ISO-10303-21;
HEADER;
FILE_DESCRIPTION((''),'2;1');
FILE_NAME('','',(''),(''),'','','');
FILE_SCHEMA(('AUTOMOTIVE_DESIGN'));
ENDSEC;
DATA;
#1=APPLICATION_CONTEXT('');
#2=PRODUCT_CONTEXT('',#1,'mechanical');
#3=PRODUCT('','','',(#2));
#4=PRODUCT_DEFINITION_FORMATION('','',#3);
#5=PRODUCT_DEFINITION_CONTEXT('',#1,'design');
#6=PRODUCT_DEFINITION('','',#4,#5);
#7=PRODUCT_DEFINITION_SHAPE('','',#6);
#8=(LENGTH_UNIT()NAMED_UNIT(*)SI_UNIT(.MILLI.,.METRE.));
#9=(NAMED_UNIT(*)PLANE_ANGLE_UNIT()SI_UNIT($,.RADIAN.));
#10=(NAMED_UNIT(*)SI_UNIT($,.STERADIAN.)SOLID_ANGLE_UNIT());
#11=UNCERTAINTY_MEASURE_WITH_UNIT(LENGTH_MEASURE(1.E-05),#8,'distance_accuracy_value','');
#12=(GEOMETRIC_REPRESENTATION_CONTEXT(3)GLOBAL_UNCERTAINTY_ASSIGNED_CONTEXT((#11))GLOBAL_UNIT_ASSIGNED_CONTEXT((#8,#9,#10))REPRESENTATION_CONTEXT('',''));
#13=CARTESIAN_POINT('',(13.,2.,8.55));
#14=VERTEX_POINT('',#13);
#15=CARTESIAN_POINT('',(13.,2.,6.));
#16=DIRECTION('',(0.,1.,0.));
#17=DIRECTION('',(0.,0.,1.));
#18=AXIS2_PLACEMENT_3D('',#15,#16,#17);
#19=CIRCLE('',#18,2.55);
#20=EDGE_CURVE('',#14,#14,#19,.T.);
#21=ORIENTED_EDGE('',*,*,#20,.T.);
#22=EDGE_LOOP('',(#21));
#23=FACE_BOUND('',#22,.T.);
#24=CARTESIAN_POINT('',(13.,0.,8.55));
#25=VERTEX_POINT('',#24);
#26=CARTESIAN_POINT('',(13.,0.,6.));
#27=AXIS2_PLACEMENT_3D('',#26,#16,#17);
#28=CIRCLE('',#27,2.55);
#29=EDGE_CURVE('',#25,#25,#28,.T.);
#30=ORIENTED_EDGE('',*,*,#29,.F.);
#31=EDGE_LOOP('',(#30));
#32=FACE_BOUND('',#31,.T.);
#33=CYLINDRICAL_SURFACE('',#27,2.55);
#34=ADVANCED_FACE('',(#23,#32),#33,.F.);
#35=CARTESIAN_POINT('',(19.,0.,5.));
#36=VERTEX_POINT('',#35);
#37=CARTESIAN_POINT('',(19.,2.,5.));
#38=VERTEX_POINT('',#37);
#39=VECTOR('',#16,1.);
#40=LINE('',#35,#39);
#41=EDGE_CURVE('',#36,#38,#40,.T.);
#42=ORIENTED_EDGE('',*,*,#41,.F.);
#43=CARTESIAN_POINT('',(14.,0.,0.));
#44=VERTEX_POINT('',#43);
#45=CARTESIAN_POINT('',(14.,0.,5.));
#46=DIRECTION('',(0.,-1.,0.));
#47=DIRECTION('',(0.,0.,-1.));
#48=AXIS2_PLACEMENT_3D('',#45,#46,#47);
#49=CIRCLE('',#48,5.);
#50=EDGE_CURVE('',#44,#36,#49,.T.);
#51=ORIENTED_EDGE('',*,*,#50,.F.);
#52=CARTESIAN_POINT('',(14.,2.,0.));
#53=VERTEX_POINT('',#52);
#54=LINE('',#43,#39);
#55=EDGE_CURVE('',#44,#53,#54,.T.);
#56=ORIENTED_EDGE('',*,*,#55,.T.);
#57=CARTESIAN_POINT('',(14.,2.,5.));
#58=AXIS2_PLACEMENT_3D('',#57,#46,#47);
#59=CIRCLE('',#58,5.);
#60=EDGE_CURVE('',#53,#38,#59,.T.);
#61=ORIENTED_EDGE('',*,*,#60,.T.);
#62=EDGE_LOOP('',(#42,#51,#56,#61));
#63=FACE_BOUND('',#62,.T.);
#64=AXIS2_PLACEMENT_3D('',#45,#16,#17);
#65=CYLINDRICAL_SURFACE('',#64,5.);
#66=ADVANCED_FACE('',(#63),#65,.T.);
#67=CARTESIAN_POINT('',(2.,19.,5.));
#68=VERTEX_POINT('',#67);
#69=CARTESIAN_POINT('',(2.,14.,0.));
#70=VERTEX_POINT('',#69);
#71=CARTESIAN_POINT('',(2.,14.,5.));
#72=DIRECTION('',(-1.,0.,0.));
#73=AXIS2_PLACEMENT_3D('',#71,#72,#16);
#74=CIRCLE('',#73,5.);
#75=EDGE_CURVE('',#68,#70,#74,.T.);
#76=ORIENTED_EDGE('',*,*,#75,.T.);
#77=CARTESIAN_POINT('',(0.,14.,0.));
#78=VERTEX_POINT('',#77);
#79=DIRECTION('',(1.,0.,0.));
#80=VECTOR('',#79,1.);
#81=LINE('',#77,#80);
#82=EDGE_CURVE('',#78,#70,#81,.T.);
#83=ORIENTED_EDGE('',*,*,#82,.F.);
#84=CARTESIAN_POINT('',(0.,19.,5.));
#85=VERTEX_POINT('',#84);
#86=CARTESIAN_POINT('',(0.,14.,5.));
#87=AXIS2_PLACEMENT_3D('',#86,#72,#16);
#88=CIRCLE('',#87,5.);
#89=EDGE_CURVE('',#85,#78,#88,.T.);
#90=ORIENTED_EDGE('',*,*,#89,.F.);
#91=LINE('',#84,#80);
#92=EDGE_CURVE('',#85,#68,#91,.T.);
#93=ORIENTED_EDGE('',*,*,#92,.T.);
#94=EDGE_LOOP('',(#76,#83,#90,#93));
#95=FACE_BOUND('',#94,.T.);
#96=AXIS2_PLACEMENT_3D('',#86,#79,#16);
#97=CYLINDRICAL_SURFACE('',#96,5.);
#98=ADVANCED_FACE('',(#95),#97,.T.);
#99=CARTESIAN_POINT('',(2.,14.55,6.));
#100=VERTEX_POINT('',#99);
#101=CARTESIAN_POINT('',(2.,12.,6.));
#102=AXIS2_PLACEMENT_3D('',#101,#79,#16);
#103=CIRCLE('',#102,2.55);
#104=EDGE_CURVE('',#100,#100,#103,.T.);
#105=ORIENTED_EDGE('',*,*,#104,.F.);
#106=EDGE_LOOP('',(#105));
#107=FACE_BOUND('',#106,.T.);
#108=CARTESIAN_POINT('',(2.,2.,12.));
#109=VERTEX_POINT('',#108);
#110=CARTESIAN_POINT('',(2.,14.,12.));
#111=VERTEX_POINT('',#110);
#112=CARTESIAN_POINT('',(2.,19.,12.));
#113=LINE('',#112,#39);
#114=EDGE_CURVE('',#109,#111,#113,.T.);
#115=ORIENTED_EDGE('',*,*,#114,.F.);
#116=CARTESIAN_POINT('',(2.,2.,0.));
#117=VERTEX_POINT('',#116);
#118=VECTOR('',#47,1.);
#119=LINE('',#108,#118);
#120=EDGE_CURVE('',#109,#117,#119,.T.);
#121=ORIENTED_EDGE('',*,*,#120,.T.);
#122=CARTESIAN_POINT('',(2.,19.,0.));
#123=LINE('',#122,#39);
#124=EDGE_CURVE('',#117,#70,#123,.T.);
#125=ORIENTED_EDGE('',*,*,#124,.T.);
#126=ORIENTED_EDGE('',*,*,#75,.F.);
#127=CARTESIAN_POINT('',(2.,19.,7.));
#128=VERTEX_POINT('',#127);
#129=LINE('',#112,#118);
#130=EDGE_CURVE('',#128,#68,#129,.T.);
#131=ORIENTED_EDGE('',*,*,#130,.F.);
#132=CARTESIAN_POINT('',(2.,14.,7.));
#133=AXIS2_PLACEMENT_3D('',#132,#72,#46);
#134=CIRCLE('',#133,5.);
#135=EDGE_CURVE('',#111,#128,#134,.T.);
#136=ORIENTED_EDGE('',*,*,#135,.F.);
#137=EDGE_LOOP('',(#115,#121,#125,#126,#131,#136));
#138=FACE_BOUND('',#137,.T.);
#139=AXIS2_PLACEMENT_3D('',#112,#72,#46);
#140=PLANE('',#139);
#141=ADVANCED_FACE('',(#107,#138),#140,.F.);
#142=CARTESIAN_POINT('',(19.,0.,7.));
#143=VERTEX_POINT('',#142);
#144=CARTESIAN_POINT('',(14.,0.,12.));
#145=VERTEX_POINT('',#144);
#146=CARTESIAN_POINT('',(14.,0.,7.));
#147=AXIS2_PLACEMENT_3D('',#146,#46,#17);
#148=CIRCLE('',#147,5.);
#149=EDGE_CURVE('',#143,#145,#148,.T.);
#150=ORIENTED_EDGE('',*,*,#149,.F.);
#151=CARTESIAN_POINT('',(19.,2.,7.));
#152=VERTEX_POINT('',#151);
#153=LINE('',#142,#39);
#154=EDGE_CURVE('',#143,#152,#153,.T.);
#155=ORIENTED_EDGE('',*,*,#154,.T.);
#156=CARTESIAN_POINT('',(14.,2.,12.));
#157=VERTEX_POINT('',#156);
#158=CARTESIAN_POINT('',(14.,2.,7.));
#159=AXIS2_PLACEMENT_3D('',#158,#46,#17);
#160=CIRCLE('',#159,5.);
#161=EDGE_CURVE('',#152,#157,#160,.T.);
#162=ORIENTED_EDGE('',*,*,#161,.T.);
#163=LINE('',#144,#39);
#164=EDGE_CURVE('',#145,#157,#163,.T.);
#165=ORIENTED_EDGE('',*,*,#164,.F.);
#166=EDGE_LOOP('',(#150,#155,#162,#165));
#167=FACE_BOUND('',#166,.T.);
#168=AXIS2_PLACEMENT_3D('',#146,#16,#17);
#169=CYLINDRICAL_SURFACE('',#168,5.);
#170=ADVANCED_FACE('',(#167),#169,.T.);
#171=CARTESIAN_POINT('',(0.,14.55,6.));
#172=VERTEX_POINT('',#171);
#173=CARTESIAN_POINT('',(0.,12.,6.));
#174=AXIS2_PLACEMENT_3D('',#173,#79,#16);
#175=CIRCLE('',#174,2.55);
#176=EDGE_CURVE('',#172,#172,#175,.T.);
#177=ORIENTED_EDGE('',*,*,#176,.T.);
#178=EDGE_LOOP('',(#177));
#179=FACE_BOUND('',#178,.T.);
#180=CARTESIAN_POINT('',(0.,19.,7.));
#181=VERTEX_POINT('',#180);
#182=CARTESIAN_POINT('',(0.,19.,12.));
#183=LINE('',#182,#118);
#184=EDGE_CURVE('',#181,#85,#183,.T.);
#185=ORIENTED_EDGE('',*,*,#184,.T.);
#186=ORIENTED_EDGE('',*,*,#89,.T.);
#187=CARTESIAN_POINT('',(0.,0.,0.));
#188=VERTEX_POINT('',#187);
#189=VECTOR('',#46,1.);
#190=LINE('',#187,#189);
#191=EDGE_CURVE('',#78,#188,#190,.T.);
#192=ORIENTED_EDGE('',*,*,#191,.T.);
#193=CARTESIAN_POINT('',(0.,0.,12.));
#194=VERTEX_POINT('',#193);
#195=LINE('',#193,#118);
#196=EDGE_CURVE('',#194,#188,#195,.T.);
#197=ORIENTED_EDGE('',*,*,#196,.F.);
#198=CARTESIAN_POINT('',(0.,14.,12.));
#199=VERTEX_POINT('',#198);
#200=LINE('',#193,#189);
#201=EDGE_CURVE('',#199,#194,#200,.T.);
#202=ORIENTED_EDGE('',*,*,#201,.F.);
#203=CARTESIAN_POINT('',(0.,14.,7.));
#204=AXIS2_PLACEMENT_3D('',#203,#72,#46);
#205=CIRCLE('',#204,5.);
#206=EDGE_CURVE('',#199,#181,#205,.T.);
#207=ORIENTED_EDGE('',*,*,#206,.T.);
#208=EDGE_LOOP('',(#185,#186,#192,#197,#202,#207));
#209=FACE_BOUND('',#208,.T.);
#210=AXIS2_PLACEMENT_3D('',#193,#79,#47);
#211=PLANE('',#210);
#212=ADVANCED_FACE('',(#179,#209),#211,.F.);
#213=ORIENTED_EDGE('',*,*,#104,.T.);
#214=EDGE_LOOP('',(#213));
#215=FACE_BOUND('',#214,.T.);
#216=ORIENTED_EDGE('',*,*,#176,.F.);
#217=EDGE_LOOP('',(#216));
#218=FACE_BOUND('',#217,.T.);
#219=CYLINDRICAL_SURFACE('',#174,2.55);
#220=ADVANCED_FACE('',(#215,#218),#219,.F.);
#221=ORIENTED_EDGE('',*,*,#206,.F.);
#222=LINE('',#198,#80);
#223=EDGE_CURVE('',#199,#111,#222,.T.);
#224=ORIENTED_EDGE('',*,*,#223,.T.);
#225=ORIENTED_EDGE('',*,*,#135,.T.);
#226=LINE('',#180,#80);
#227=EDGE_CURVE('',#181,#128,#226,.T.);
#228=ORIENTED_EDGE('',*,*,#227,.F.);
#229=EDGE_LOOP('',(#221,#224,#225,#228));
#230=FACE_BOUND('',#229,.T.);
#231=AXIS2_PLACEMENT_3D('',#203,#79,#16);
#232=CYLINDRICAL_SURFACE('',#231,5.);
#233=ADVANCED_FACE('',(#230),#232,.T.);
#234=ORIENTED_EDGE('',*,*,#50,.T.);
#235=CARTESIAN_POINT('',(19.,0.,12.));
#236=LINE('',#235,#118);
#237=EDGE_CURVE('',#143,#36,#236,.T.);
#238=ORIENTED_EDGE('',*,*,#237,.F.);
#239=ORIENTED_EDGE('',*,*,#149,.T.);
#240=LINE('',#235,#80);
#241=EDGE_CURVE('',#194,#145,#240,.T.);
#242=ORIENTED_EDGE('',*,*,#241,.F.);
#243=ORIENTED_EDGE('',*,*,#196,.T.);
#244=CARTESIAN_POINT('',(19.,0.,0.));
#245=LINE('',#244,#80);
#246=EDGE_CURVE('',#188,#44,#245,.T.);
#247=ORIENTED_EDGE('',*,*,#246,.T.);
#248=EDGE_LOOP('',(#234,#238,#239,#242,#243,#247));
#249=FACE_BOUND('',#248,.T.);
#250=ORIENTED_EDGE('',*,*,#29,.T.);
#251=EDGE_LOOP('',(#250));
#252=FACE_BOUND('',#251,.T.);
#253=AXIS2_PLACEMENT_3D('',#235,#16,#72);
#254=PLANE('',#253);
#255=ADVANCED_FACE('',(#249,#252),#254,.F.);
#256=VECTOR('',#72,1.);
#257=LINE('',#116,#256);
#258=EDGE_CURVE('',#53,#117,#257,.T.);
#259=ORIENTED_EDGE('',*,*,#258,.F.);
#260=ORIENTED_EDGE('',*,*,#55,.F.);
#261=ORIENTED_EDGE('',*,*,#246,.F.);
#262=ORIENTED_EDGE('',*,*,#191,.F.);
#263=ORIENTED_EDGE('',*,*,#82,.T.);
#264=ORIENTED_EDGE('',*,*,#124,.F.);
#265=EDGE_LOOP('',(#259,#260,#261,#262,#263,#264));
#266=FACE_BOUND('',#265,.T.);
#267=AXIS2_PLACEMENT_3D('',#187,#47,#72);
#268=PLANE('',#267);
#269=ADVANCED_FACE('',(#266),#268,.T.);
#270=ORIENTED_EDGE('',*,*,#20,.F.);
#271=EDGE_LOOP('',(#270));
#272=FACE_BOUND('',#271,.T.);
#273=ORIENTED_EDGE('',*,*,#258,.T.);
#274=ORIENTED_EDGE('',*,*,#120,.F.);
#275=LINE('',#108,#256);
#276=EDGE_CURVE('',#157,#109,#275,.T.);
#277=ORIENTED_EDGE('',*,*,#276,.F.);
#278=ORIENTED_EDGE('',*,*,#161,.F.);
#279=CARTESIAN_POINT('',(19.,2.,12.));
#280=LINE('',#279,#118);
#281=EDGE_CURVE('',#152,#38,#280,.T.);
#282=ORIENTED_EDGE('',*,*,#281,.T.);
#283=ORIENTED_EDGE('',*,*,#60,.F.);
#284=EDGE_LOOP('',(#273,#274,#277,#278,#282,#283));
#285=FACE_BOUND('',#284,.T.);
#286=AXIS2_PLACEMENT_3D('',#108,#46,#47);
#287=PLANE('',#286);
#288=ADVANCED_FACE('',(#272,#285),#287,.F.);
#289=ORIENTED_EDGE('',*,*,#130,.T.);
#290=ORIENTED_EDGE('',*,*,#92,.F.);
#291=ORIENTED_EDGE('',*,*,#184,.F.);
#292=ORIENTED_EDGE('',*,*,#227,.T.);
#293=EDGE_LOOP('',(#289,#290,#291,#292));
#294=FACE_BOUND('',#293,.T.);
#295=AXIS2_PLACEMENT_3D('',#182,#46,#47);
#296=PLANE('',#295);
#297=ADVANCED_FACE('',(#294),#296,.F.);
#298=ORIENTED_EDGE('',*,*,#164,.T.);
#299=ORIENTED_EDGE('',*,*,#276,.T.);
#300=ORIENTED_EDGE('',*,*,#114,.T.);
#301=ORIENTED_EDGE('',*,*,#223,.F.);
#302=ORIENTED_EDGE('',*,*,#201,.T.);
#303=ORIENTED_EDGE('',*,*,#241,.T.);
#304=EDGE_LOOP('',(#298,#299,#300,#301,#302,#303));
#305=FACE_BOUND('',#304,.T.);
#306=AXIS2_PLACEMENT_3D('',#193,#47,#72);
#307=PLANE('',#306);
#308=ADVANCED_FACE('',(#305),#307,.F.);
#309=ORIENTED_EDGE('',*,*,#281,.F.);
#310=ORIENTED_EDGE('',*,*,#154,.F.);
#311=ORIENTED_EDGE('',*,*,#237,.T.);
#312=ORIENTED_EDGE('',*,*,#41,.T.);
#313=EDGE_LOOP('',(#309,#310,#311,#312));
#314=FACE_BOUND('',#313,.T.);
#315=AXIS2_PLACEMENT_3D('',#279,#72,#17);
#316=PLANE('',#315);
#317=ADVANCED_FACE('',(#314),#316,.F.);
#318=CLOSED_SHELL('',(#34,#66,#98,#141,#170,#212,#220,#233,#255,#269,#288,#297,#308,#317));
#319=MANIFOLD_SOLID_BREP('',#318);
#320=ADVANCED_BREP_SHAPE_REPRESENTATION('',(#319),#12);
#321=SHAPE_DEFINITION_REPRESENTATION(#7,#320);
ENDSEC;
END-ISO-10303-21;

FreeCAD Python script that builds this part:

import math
import FreeCAD as App
import Part
import Sketcher
Q = App.Units.Quantity

doc = App.newDocument("Part")
body = doc.addObject("PartDesign::Body", "Body")

# Sketch on XY plane
sketch1 = doc.addObject("Sketcher::SketchObject", "Sketch")
body.addObject(sketch1)
sketch1.AttachmentSupport = (doc.XY_Plane, [""])
sketch1.MapMode = "FlatFace"
sketch1.addGeometry([
    Part.LineSegment(App.Vector(0, 19, 0), App.Vector(0, 0, 0)),  # 0
    Part.LineSegment(App.Vector(0, 0, 0), App.Vector(19, 0, 0)),  # 1
    Part.LineSegment(App.Vector(19, 0, 0), App.Vector(19, 2, 0)),  # 2
    Part.LineSegment(App.Vector(19, 2, 0), App.Vector(2, 2, 0)),  # 3
    Part.LineSegment(App.Vector(2, 2, 0), App.Vector(2, 19, 0)),  # 4
    Part.LineSegment(App.Vector(2, 19, 0), App.Vector(0, 19, 0)),  # 5
], False)
sketch1.addConstraint([
    Sketcher.Constraint("Coincident", 0, 2, 1, 1),
    Sketcher.Constraint("Coincident", 1, 2, 2, 1),
    Sketcher.Constraint("Coincident", 2, 2, 3, 1),
    Sketcher.Constraint("Coincident", 3, 2, 4, 1),
    Sketcher.Constraint("Coincident", 4, 2, 5, 1),
    Sketcher.Constraint("Coincident", 5, 2, 0, 1),
    Sketcher.Constraint("Vertical", 0),
    Sketcher.Constraint("Horizontal", 1),
    Sketcher.Constraint("Vertical", 2),
    Sketcher.Constraint("Horizontal", 3),
    Sketcher.Constraint("Vertical", 4),
    Sketcher.Constraint("Horizontal", 5),
    Sketcher.Constraint("Coincident", 0, 2, -1, 1),
    Sketcher.Constraint("Equal", 1, 0),
    Sketcher.Constraint("Equal", 5, 2),
    Sketcher.Constraint("DistanceX", 1, 1, 1, 2, Q("19 mm")),
    Sketcher.Constraint("DistanceX", 3, 2, 3, 1, Q("17 mm")),
])
pad1 = doc.addObject("PartDesign::Pad", "Pad")
body.addObject(pad1)
pad1.Profile = sketch1
pad1.Length = 12

# Sketch on YZ plane
sketch2 = doc.addObject("Sketcher::SketchObject", "Sketch001")
body.addObject(sketch2)
sketch2.AttachmentSupport = (doc.YZ_Plane, [""])
sketch2.MapMode = "FlatFace"
sketch2.AttachmentOffset = App.Placement(App.Vector(0, 0, 2), App.Rotation())
sketch2.addGeometry([
    Part.Circle(App.Vector(12, 6, 0), App.Vector(0, 0, 1), 2.5),  # 0
    Part.LineSegment(App.Vector(19, 12, 0), App.Vector(14, 12, 0)),  # 1
    Part.ArcOfCircle(Part.Circle(App.Vector(14, 7, 0), App.Vector(0, 0, 1), 5), math.radians(0), math.radians(90)),  # 2
    Part.LineSegment(App.Vector(19, 7, 0), App.Vector(19, 12, 0)),  # 3
    Part.LineSegment(App.Vector(14, 0, 0), App.Vector(19, 0, 0)),  # 4
    Part.LineSegment(App.Vector(19, 0, 0), App.Vector(19, 5, 0)),  # 5
    Part.ArcOfCircle(Part.Circle(App.Vector(14, 5, 0), App.Vector(0, 0, 1), 5), math.radians(-90), math.radians(0)),  # 6
], False)
sketch2.addConstraint([
    Sketcher.Constraint("Tangent", 1, 2, 2, 2),
    Sketcher.Constraint("Tangent", 2, 1, 3, 1),
    Sketcher.Constraint("Coincident", 3, 2, 1, 1),
    Sketcher.Constraint("Coincident", 4, 2, 5, 1),
    Sketcher.Constraint("Tangent", 5, 2, 6, 2),
    Sketcher.Constraint("Tangent", 6, 1, 4, 1),
    Sketcher.Constraint("Horizontal", 1),
    Sketcher.Constraint("Vertical", 3),
    Sketcher.Constraint("Horizontal", 4),
    Sketcher.Constraint("Vertical", 5),
    Sketcher.Constraint("Equal", 2, 6),
    Sketcher.Constraint("PointOnObject", 4, 2, -1),
    Sketcher.Constraint("Vertical", 2, 3, 6, 3),
    Sketcher.Constraint("Radius", 2, Q("5 mm")),
    Sketcher.Constraint("Diameter", 0, Q("5.1 mm")),
    Sketcher.Constraint("DistanceX", -1, 1, 0, 3, Q("12 mm")),
    Sketcher.Constraint("DistanceY", -1, 1, 0, 3, Q("6 mm")),
    Sketcher.Constraint("DistanceX", -1, 1, 2, 3, Q("14 mm")),
    Sketcher.Constraint("DistanceY", -1, 1, 2, 3, Q("7 mm")),
])
pocket1 = doc.addObject("PartDesign::Pocket", "Pocket")
body.addObject(pocket1)
pocket1.Profile = sketch2
pocket1.Type = "ThroughAll"

# Sketch on XZ plane
sketch3 = doc.addObject("Sketcher::SketchObject", "Sketch002")
body.addObject(sketch3)
sketch3.AttachmentSupport = (doc.XZ_Plane, [""])
sketch3.MapMode = "FlatFace"
sketch3.AttachmentOffset = App.Placement(App.Vector(0, 0, -2), App.Rotation())
sketch3.addGeometry([
    Part.Circle(App.Vector(13, 6, 0), App.Vector(0, 0, 1), 2.5),  # 0
    Part.LineSegment(App.Vector(19, 0, 0), App.Vector(14, 0, 0)),  # 1
    Part.ArcOfCircle(Part.Circle(App.Vector(14, 5, 0), App.Vector(0, 0, 1), 5), math.radians(-90), math.radians(0)),  # 2
    Part.LineSegment(App.Vector(19, 5, 0), App.Vector(19, 0, 0)),  # 3
    Part.LineSegment(App.Vector(14, 12, 0), App.Vector(19, 12, 0)),  # 4
    Part.LineSegment(App.Vector(19, 12, 0), App.Vector(19, 7, 0)),  # 5
    Part.ArcOfCircle(Part.Circle(App.Vector(14, 7, 0), App.Vector(0, 0, 1), 5), math.radians(0), math.radians(90)),  # 6
], False)
sketch3.addConstraint([
    Sketcher.Constraint("Tangent", 1, 2, 2, 1),
    Sketcher.Constraint("Tangent", 2, 2, 3, 1),
    Sketcher.Constraint("Coincident", 3, 2, 1, 1),
    Sketcher.Constraint("Coincident", 4, 2, 5, 1),
    Sketcher.Constraint("Tangent", 5, 2, 6, 1),
    Sketcher.Constraint("Tangent", 6, 2, 4, 1),
    Sketcher.Constraint("Horizontal", 1),
    Sketcher.Constraint("Vertical", 3),
    Sketcher.Constraint("Horizontal", 4),
    Sketcher.Constraint("Vertical", 5),
    Sketcher.Constraint("Equal", 2, 6),
    Sketcher.Constraint("PointOnObject", 1, 2, -1),
    Sketcher.Constraint("Vertical", 2, 3, 6, 3),
    Sketcher.Constraint("Radius", 2, Q("5 mm")),
    Sketcher.Constraint("Diameter", 0, Q("5.1 mm")),
    Sketcher.Constraint("DistanceX", -1, 1, 0, 3, Q("13 mm")),
    Sketcher.Constraint("DistanceY", -1, 1, 0, 3, Q("6 mm")),
    Sketcher.Constraint("DistanceX", -1, 1, 2, 3, Q("14 mm")),
    Sketcher.Constraint("DistanceY", -1, 1, 6, 3, Q("7 mm")),
])
pocket2 = doc.addObject("PartDesign::Pocket", "Pocket001")
body.addObject(pocket2)
pocket2.Profile = sketch3
pocket2.Type = "ThroughAll"
pocket2.Reversed = True

doc.recompute()
